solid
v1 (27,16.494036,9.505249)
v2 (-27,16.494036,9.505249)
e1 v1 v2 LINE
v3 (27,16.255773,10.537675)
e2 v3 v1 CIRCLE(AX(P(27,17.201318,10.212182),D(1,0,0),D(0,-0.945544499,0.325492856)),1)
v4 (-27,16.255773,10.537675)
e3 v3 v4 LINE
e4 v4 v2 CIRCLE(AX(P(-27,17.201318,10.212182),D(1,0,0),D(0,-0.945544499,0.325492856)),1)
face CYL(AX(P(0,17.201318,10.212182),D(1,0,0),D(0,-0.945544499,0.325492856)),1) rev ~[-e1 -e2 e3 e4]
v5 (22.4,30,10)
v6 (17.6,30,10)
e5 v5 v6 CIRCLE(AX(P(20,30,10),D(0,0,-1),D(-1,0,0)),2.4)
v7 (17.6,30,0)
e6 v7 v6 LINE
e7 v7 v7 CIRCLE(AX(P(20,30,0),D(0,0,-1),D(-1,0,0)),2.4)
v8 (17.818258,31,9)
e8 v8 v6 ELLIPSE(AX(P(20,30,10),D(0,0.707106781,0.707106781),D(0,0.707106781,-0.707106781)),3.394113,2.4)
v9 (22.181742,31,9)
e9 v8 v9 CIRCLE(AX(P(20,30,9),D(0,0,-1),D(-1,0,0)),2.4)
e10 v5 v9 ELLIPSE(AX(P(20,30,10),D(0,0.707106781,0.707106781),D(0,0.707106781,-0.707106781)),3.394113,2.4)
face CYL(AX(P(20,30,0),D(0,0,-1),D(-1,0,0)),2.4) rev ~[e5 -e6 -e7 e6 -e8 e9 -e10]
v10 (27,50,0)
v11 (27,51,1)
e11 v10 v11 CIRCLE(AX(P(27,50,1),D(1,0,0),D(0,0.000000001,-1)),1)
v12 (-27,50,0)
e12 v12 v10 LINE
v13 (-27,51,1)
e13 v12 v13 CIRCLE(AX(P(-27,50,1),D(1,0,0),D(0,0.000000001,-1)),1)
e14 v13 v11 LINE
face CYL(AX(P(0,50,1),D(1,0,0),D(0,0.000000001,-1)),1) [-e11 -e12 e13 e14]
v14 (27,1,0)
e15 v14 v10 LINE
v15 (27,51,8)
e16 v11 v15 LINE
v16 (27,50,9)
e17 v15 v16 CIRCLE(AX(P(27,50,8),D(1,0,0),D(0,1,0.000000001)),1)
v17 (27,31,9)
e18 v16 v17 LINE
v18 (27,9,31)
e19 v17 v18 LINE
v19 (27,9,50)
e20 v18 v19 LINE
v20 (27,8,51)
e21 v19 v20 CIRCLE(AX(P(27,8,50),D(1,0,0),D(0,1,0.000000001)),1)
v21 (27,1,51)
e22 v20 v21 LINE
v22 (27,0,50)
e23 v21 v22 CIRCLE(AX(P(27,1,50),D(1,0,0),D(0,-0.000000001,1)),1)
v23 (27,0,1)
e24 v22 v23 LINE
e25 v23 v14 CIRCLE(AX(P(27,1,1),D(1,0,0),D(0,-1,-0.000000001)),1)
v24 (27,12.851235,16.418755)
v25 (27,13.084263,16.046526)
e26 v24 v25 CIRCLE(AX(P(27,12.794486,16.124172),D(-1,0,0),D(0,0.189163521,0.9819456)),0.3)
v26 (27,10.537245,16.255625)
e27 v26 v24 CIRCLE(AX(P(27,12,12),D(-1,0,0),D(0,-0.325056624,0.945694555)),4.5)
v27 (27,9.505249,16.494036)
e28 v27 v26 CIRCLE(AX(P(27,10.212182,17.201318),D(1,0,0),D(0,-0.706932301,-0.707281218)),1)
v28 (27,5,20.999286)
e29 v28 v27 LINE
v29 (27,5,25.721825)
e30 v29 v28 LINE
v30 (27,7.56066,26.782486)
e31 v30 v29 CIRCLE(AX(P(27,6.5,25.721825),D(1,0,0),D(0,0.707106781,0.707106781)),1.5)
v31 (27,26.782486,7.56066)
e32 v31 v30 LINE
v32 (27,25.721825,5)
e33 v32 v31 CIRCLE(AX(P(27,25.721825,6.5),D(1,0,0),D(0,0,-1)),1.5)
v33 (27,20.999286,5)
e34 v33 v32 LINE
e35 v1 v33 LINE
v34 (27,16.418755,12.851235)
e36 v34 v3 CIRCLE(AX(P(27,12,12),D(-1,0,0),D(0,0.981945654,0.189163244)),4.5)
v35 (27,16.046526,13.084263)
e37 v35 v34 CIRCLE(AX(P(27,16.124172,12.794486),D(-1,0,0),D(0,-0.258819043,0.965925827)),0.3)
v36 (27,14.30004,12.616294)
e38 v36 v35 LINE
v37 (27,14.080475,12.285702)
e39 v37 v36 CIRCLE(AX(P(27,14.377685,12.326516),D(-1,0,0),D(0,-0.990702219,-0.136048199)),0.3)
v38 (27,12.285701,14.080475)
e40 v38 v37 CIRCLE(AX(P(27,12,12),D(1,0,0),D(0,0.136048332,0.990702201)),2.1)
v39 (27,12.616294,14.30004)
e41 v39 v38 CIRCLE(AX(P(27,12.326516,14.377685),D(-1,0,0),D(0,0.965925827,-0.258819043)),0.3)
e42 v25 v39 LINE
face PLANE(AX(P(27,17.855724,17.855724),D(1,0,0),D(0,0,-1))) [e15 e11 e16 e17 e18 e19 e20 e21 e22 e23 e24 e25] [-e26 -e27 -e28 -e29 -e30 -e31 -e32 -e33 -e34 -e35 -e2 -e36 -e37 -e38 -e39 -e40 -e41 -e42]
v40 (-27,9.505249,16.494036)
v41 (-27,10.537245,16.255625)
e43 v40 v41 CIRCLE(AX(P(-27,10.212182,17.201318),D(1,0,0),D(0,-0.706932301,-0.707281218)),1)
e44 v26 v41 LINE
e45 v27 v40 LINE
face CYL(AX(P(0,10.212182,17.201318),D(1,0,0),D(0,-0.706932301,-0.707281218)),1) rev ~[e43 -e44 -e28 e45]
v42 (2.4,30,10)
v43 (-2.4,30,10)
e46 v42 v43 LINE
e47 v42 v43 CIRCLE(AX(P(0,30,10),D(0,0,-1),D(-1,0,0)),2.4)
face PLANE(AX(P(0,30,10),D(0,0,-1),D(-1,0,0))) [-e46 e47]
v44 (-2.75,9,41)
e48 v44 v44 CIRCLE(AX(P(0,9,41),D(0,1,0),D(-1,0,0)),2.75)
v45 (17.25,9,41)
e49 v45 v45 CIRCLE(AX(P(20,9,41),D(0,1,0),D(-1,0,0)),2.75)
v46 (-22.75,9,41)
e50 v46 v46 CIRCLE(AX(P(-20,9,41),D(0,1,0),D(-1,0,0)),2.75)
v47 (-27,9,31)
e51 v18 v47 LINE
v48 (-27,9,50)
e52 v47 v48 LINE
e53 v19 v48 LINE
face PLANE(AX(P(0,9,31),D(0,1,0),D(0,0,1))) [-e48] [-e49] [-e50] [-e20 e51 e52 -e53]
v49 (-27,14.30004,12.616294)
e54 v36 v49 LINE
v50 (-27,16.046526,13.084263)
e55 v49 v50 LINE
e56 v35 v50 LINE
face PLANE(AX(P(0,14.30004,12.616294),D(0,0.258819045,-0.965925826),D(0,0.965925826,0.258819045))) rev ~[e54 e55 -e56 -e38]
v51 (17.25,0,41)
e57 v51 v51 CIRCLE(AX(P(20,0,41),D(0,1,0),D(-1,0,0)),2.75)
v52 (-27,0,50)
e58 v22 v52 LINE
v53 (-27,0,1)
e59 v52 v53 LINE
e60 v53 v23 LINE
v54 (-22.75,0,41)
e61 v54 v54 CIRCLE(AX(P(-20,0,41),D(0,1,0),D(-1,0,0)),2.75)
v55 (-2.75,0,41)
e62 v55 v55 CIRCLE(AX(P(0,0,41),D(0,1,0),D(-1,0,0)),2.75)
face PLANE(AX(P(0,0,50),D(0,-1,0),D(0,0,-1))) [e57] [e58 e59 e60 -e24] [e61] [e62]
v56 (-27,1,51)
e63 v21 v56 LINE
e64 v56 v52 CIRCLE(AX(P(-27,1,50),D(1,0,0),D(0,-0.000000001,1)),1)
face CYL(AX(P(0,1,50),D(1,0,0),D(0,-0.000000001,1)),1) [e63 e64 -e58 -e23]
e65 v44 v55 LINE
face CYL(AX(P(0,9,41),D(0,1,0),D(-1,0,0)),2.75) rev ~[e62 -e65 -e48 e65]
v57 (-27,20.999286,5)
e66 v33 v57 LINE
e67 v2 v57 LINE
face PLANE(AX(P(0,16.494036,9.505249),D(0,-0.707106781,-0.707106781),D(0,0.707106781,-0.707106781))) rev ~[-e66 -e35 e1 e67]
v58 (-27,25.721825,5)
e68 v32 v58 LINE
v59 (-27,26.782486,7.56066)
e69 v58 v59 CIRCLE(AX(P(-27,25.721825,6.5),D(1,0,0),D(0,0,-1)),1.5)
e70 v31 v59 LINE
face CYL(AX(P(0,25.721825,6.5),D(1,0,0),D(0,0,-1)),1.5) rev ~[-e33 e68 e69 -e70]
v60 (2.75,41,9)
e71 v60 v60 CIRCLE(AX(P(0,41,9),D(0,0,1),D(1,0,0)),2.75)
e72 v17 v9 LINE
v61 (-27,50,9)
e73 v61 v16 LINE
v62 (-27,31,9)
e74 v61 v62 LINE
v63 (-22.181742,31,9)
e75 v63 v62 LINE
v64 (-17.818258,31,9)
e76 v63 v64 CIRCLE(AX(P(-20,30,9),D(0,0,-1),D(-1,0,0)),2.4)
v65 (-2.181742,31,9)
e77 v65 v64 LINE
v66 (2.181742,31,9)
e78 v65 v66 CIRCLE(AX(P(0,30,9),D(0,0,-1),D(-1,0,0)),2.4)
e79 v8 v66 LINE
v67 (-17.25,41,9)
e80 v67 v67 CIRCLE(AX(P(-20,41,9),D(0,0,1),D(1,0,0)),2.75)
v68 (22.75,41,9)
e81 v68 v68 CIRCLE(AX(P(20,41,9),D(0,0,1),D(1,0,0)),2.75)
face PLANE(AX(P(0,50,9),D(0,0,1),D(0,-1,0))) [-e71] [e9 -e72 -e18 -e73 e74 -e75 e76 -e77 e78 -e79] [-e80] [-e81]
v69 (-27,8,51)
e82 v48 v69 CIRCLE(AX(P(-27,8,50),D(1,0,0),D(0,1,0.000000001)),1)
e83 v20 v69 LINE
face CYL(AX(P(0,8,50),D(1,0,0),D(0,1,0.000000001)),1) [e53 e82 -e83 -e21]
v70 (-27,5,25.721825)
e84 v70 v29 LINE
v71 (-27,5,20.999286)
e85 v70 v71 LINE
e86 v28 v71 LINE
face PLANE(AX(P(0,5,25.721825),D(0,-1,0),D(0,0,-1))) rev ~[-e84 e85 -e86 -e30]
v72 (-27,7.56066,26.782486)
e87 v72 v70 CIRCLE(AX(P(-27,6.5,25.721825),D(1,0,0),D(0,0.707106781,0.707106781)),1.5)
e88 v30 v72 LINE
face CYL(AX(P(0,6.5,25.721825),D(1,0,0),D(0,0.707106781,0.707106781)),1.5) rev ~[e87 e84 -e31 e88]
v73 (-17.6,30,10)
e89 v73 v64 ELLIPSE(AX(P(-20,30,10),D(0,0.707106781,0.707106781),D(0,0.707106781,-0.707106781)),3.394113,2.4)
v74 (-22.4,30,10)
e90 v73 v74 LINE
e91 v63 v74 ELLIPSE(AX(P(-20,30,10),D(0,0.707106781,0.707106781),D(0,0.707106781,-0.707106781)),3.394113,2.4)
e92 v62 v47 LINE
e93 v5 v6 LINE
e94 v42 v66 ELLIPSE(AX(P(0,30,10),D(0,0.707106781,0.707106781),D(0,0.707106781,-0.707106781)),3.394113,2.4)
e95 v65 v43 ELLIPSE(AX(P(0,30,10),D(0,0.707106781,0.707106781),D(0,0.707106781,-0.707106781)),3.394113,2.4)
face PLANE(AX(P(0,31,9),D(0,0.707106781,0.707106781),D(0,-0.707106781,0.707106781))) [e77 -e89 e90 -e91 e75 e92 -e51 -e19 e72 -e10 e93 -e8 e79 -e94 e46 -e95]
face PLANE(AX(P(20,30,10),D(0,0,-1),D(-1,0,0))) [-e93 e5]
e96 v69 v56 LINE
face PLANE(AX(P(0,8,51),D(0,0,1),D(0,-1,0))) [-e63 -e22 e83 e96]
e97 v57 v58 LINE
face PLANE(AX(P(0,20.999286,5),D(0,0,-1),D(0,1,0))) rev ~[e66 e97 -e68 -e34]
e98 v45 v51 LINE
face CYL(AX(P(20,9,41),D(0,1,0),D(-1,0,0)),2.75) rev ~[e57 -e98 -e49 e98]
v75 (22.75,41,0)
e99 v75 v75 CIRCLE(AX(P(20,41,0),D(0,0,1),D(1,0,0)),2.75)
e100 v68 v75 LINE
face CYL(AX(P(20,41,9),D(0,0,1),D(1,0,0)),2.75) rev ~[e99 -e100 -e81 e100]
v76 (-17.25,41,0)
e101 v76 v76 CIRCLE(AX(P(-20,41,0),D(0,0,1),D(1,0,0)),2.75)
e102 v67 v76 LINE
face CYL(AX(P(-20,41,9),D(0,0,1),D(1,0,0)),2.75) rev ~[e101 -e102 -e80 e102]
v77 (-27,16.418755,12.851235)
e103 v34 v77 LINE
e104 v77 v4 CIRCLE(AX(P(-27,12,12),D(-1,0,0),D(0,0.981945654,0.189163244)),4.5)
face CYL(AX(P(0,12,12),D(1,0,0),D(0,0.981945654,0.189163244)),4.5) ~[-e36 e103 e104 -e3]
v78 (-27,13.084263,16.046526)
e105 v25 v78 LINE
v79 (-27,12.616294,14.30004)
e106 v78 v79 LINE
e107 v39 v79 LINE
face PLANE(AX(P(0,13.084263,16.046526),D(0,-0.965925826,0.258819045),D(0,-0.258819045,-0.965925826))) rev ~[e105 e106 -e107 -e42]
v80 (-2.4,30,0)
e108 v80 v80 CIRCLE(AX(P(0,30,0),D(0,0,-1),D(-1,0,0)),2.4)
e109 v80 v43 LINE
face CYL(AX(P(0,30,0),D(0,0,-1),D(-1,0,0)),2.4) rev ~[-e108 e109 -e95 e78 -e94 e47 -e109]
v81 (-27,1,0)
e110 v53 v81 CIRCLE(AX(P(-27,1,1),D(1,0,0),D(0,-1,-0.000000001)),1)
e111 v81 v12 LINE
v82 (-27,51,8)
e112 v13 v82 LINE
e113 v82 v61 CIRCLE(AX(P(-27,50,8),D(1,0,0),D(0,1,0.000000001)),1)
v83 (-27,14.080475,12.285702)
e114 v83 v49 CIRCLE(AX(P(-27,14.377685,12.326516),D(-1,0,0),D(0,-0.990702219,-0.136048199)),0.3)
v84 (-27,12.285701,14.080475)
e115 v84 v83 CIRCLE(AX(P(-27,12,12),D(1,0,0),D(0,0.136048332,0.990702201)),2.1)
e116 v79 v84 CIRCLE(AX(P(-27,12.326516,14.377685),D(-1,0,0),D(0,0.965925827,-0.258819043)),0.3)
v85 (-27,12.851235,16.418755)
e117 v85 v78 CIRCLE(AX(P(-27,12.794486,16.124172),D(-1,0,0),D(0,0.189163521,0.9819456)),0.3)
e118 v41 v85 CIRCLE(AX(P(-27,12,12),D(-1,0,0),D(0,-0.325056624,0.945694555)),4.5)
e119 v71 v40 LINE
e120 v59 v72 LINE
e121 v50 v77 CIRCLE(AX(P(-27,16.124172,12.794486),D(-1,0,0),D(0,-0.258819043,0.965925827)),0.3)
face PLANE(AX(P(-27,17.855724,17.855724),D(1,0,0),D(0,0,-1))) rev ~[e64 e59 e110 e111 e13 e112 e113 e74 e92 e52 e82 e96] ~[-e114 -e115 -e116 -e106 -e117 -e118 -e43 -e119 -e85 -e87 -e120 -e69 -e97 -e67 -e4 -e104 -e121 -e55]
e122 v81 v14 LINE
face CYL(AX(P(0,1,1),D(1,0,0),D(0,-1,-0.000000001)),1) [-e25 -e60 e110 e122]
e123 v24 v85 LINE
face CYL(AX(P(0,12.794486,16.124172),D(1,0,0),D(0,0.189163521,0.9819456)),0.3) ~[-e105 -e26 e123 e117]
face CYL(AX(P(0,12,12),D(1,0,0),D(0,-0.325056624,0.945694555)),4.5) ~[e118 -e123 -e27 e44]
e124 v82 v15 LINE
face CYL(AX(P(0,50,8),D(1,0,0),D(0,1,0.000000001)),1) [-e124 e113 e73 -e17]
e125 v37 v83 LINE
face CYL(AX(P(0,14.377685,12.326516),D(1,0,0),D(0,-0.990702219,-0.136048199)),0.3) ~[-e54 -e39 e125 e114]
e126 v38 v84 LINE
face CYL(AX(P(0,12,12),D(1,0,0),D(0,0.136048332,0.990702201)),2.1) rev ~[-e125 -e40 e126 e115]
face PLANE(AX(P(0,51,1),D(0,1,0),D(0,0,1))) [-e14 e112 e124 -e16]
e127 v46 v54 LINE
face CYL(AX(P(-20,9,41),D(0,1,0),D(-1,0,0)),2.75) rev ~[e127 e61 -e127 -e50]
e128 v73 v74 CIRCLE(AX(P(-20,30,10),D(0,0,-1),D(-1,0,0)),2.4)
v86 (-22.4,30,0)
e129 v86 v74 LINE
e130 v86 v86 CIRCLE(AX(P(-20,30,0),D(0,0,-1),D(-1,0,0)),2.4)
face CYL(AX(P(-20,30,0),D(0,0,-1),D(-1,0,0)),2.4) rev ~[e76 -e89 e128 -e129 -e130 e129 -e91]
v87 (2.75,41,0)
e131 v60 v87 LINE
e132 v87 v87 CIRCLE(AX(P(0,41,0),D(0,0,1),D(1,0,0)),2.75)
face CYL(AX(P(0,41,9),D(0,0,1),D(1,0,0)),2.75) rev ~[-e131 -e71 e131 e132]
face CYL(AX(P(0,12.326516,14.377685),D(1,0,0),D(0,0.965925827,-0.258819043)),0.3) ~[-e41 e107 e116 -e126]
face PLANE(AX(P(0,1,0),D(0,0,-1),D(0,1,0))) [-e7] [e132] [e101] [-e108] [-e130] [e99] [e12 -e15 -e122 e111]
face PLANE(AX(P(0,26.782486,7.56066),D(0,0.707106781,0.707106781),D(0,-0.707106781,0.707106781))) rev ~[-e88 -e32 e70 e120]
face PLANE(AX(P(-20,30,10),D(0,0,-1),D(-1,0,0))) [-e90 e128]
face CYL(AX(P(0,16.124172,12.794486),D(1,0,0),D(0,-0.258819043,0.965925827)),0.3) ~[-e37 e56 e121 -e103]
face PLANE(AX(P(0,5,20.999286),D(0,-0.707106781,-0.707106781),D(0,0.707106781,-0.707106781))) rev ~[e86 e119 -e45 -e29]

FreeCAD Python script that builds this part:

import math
import FreeCAD as App
import Part
import Sketcher

V = App.Vector
Q = App.Units.Quantity

doc = App.newDocument("Part")
body = doc.addObject("PartDesign::Body", "Body")

sketch1 = body.newObject("Sketcher::SketchObject", "Sketch")
sketch1.AttachmentSupport = (doc.getObject("YZ_Plane"), [""])
sketch1.MapMode = "FlatFace"
sketch1.addGeometry([
    Part.LineSegment(V(0, 50, 0), V(0, 1, 0)),
    Part.ArcOfCircle(Part.Circle(V(1, 1, 0), V(0, 0, 1), 1), math.radians(-180), math.radians(-90)),
    Part.LineSegment(V(1, 0, 0), V(50, 0, 0)),
    Part.ArcOfCircle(Part.Circle(V(50, 1, 0), V(0, 0, 1), 1), math.radians(-90), math.radians(0)),
    Part.LineSegment(V(51, 1, 0), V(51, 8, 0)),
    Part.ArcOfCircle(Part.Circle(V(50, 8, 0), V(0, 0, 1), 1), math.radians(0), math.radians(90)),
    Part.LineSegment(V(50, 9, 0), V(31, 9, 0)),
    Part.LineSegment(V(31, 9, 0), V(9, 31, 0)),
    Part.LineSegment(V(9, 31, 0), V(9, 50, 0)),
    Part.ArcOfCircle(Part.Circle(V(8, 50, 0), V(0, 0, 1), 1), math.radians(0), math.radians(90)),
    Part.LineSegment(V(8, 51, 0), V(1, 51, 0)),
    Part.ArcOfCircle(Part.Circle(V(1, 50, 0), V(0, 0, 1), 1), math.radians(90), math.radians(180)),
    Part.LineSegment(V(5, 21, 0), V(5, 25.72, 0)),
    Part.ArcOfCircle(Part.Circle(V(6.5, 25.72, 0), V(0, 0, 1), 1.5), math.radians(45), math.radians(180)),
    Part.LineSegment(V(7.56, 26.78, 0), V(26.78, 7.56, 0)),
    Part.ArcOfCircle(Part.Circle(V(25.72, 6.5, 0), V(0, 0, 1), 1.5), math.radians(-90), math.radians(45)),
    Part.LineSegment(V(25.72, 5, 0), V(21, 5, 0)),
    Part.LineSegment(V(21, 5, 0), V(16.49, 9.51, 0)),
    Part.ArcOfCircle(Part.Circle(V(17.2, 10.21, 0), V(0, 0, 1), 1), math.radians(161), math.radians(225)),
    Part.ArcOfCircle(Part.Circle(V(12, 12, 0), V(0, 0, 1), 4.5), math.radians(-19), math.radians(11)),
    Part.ArcOfCircle(Part.Circle(V(16.12, 12.79, 0), V(0, 0, 1), 0.3), math.radians(11), math.radians(105)),
    Part.LineSegment(V(16.05, 13.08, 0), V(14.3, 12.62, 0)),
    Part.ArcOfCircle(Part.Circle(V(14.38, 12.33, 0), V(0, 0, 1), 0.3), math.radians(105), math.radians(188)),
    Part.ArcOfCircle(Part.Circle(V(12, 12, 0), V(0, 0, 1), 2.1), math.radians(82), math.radians(368)),
    Part.ArcOfCircle(Part.Circle(V(12.33, 14.38, 0), V(0, 0, 1), 0.3), math.radians(-98), math.radians(-15)),
    Part.LineSegment(V(12.62, 14.3, 0), V(13.08, 16.05, 0)),
    Part.ArcOfCircle(Part.Circle(V(12.79, 16.12, 0), V(0, 0, 1), 0.3), math.radians(-15), math.radians(79)),
    Part.ArcOfCircle(Part.Circle(V(12, 12, 0), V(0, 0, 1), 4.5), math.radians(79), math.radians(109)),
    Part.ArcOfCircle(Part.Circle(V(10.21, 17.2, 0), V(0, 0, 1), 1), math.radians(-135), math.radians(-71)),
    Part.LineSegment(V(9.51, 16.49, 0), V(5, 21, 0)),
], False)
sketch1.addConstraint([
    Sketcher.Constraint("Tangent", 0, 2, 1, 1),
    Sketcher.Constraint("Tangent", 1, 2, 2, 1),
    Sketcher.Constraint("Tangent", 2, 2, 3, 1),
    Sketcher.Constraint("Tangent", 3, 2, 4, 1),
    Sketcher.Constraint("Tangent", 4, 2, 5, 1),
    Sketcher.Constraint("Tangent", 5, 2, 6, 1),
    Sketcher.Constraint("Coincident", 6, 2, 7, 1),
    Sketcher.Constraint("Coincident", 7, 2, 8, 1),
    Sketcher.Constraint("Tangent", 8, 2, 9, 1),
    Sketcher.Constraint("Tangent", 9, 2, 10, 1),
    Sketcher.Constraint("Tangent", 10, 2, 11, 1),
    Sketcher.Constraint("Tangent", 11, 2, 0, 1),
    Sketcher.Constraint("Tangent", 12, 2, 13, 2),
    Sketcher.Constraint("Tangent", 13, 1, 14, 1),
    Sketcher.Constraint("Tangent", 14, 2, 15, 2),
    Sketcher.Constraint("Tangent", 15, 1, 16, 1),
    Sketcher.Constraint("Coincident", 16, 2, 17, 1),
    Sketcher.Constraint("Coincident", 17, 2, 18, 2),
    Sketcher.Constraint("Coincident", 18, 1, 19, 1),
    Sketcher.Constraint("Tangent", 19, 2, 20, 1),
    Sketcher.Constraint("Tangent", 20, 2, 21, 1),
    Sketcher.Constraint("Tangent", 21, 2, 22, 1),
    Sketcher.Constraint("Tangent", 22, 2, 23, 2),
    Sketcher.Constraint("Tangent", 23, 1, 24, 1),
    Sketcher.Constraint("Tangent", 24, 2, 25, 1),
    Sketcher.Constraint("Tangent", 25, 2, 26, 1),
    Sketcher.Constraint("Tangent", 26, 2, 27, 1),
    Sketcher.Constraint("Coincident", 27, 2, 28, 2),
    Sketcher.Constraint("Coincident", 28, 1, 29, 1),
    Sketcher.Constraint("Coincident", 29, 2, 12, 1),
    Sketcher.Constraint("Vertical", 0),
    Sketcher.Constraint("Horizontal", 2),
    Sketcher.Constraint("Vertical", 4),
    Sketcher.Constraint("Horizontal", 6),
    Sketcher.Constraint("Vertical", 8),
    Sketcher.Constraint("Horizontal", 10),
    Sketcher.Constraint("Vertical", 12),
    Sketcher.Constraint("Horizontal", 16),
    Sketcher.Constraint("Coincident", 23, 3, 19, 3),
    Sketcher.Constraint("Coincident", 27, 3, 19, 3),
    Sketcher.Constraint("Equal", 1, 3),
    Sketcher.Constraint("Equal", 3, 5),
    Sketcher.Constraint("Equal", 5, 9),
    Sketcher.Constraint("Equal", 9, 11),
    Sketcher.Constraint("Equal", 13, 15),
    Sketcher.Constraint("Equal", 11, 18),
    Sketcher.Constraint("Equal", 20, 22),
    Sketcher.Constraint("Equal", 22, 24),
    Sketcher.Constraint("Equal", 24, 26),
    Sketcher.Constraint("Equal", 19, 27),
    Sketcher.Constraint("Equal", 18, 28),
    Sketcher.Constraint("PointOnObject", 0, 2, -2),
    Sketcher.Constraint("PointOnObject", 1, 2, -1),
    Sketcher.Constraint("Parallel", 7, 14),
    Sketcher.Constraint("Parallel", 14, 17),
    Sketcher.Constraint("Parallel", 17, 29),
    Sketcher.Constraint("Equal", 2, 0),
    Sketcher.Constraint("Equal", 10, 4),
    Sketcher.Constraint("Equal", 6, 8),
    Sketcher.Constraint("Equal", 16, 12),
    Sketcher.Constraint("Equal", 21, 25),
    Sketcher.Constraint("Equal", 17, 29),
    Sketcher.Constraint("Radius", 1, Q("1 mm")),
    Sketcher.Constraint("Radius", 13, Q("1.5 mm")),
    Sketcher.Constraint("Radius", 19, Q("4.5 mm")),
    Sketcher.Constraint("Radius", 20, Q("0.3 mm")),
    Sketcher.Constraint("Radius", 23, Q("2.1 mm")),
    Sketcher.Constraint("DistanceX", 2, 1, 2, 2, Q("49 mm")),
    Sketcher.Constraint("DistanceX", 6, 2, 6, 1, Q("19 mm")),
    Sketcher.Constraint("DistanceX", 10, 2, 10, 1, Q("7 mm")),
    Sketcher.Constraint("Angle", 21, Q("-165 deg")),
    Sketcher.Constraint("Angle", 25, Q("75 deg")),
    Sketcher.Constraint("DistanceX", -1, 1, 19, 3, Q("12 mm")),
    Sketcher.Constraint("DistanceY", -1, 1, 19, 3, Q("12 mm")),
    Sketcher.Constraint("DistanceX", -1, 1, 12, 2, Q("5 mm")),
    Sketcher.Constraint("DistanceY", -1, 1, 15, 1, Q("5 mm")),
    Sketcher.Constraint("DistanceX", 16, 2, 16, 1, Q("4.72254 mm")),
    Sketcher.Constraint("DistanceY", -1, 1, 22, 2, Q("12.285702 mm")),
    Sketcher.Constraint("DistanceX", 24, 3, 18, 3, Q("4.874802 mm")),
    Sketcher.Constraint("DistanceX", 20, 3, 18, 1, Q("0.131601 mm")),
    Sketcher.Constraint("DistanceY", 25, 2, 27, 2, Q("0.209099 mm")),
    Sketcher.Constraint("DistanceY", -1, 1, 17, 2, Q("9.505249 mm")),
])
pad1 = body.newObject("PartDesign::Pad", "Pad")
pad1.Profile = sketch1
pad1.Type = "TwoLengths"
pad1.Length = 27
pad1.Length2 = 27

sketch2 = body.newObject("Sketcher::SketchObject", "Sketch001")
sketch2.AttachmentSupport = (doc.getObject("XY_Plane"), [""])
sketch2.MapMode = "FlatFace"
sketch2.AttachmentOffset = App.Placement(V(0, 0, 9), App.Rotation())
sketch2.addGeometry([
    Part.Circle(V(-20, 41, 0), V(0, 0, 1), 2.8),
    Part.Circle(V(0, 41, 0), V(0, 0, 1), 2.8),
    Part.Circle(V(20, 41, 0), V(0, 0, 1), 2.8),
], False)
sketch2.addConstraint([
    Sketcher.Constraint("Equal", 0, 1),
    Sketcher.Constraint("Equal", 1, 2),
    Sketcher.Constraint("Symmetric", 0, 3, 2, 3, -2),
    Sketcher.Constraint("PointOnObject", 1, 3, -2),
    Sketcher.Constraint("Horizontal", 0, 3, 1, 3),
    Sketcher.Constraint("Diameter", 0, Q("5.5 mm")),
    Sketcher.Constraint("DistanceX", 0, 3, -1, 1, Q("20 mm")),
    Sketcher.Constraint("DistanceY", -1, 1, 0, 3, Q("41 mm")),
])
pocket1 = body.newObject("PartDesign::Pocket", "Pocket")
pocket1.Profile = sketch2
pocket1.Type = "ThroughAll"

sketch3 = body.newObject("Sketcher::SketchObject", "Sketch002")
sketch3.AttachmentSupport = (doc.getObject("XZ_Plane"), [""])
sketch3.MapMode = "FlatFace"
sketch3.AttachmentOffset = App.Placement(V(0, 0, -9), App.Rotation())
sketch3.addGeometry([
    Part.Circle(V(-20, 41, 0), V(0, 0, 1), 2.8),
    Part.Circle(V(0, 41, 0), V(0, 0, 1), 2.8),
    Part.Circle(V(20, 41, 0), V(0, 0, 1), 2.8),
], False)
sketch3.addConstraint([
    Sketcher.Constraint("Equal", 0, 1),
    Sketcher.Constraint("Equal", 1, 2),
    Sketcher.Constraint("Symmetric", 0, 3, 2, 3, -2),
    Sketcher.Constraint("PointOnObject", 1, 3, -2),
    Sketcher.Constraint("Horizontal", 0, 3, 1, 3),
    Sketcher.Constraint("Diameter", 0, Q("5.5 mm")),
    Sketcher.Constraint("DistanceX", 0, 3, -1, 1, Q("20 mm")),
    Sketcher.Constraint("DistanceY", -1, 1, 0, 3, Q("41 mm")),
])
pocket2 = body.newObject("PartDesign::Pocket", "Pocket001")
pocket2.Profile = sketch3
pocket2.Type = "ThroughAll"
pocket2.Reversed = True

sketch4 = body.newObject("Sketcher::SketchObject", "Sketch003")
sketch4.AttachmentSupport = (doc.getObject("XY_Plane"), [""])
sketch4.MapMode = "FlatFace"
sketch4.addGeometry([
    Part.Circle(V(-20, 30, 0), V(0, 0, 1), 2.4),
    Part.Circle(V(20, 30, 0), V(0, 0, 1), 2.4),
    Part.Circle(V(0, 30, 0), V(0, 0, 1), 2.4),
], False)
sketch4.addConstraint([
    Sketcher.Constraint("Equal", 0, 1),
    Sketcher.Constraint("Equal", 1, 2),
    Sketcher.Constraint("Symmetric", 0, 3, 1, 3, -2),
    Sketcher.Constraint("PointOnObject", 2, 3, -2),
    Sketcher.Constraint("Horizontal", 1, 3, 2, 3),
    Sketcher.Constraint("Diameter", 0, Q("4.8 mm")),
    Sketcher.Constraint("DistanceX", 0, 3, -1, 1, Q("20 mm")),
    Sketcher.Constraint("DistanceY", -1, 1, 0, 3, Q("30 mm")),
])
pocket3 = body.newObject("PartDesign::Pocket", "Pocket002")
pocket3.Profile = sketch4
pocket3.Length = 10
pocket3.Reversed = True

doc.recompute()
